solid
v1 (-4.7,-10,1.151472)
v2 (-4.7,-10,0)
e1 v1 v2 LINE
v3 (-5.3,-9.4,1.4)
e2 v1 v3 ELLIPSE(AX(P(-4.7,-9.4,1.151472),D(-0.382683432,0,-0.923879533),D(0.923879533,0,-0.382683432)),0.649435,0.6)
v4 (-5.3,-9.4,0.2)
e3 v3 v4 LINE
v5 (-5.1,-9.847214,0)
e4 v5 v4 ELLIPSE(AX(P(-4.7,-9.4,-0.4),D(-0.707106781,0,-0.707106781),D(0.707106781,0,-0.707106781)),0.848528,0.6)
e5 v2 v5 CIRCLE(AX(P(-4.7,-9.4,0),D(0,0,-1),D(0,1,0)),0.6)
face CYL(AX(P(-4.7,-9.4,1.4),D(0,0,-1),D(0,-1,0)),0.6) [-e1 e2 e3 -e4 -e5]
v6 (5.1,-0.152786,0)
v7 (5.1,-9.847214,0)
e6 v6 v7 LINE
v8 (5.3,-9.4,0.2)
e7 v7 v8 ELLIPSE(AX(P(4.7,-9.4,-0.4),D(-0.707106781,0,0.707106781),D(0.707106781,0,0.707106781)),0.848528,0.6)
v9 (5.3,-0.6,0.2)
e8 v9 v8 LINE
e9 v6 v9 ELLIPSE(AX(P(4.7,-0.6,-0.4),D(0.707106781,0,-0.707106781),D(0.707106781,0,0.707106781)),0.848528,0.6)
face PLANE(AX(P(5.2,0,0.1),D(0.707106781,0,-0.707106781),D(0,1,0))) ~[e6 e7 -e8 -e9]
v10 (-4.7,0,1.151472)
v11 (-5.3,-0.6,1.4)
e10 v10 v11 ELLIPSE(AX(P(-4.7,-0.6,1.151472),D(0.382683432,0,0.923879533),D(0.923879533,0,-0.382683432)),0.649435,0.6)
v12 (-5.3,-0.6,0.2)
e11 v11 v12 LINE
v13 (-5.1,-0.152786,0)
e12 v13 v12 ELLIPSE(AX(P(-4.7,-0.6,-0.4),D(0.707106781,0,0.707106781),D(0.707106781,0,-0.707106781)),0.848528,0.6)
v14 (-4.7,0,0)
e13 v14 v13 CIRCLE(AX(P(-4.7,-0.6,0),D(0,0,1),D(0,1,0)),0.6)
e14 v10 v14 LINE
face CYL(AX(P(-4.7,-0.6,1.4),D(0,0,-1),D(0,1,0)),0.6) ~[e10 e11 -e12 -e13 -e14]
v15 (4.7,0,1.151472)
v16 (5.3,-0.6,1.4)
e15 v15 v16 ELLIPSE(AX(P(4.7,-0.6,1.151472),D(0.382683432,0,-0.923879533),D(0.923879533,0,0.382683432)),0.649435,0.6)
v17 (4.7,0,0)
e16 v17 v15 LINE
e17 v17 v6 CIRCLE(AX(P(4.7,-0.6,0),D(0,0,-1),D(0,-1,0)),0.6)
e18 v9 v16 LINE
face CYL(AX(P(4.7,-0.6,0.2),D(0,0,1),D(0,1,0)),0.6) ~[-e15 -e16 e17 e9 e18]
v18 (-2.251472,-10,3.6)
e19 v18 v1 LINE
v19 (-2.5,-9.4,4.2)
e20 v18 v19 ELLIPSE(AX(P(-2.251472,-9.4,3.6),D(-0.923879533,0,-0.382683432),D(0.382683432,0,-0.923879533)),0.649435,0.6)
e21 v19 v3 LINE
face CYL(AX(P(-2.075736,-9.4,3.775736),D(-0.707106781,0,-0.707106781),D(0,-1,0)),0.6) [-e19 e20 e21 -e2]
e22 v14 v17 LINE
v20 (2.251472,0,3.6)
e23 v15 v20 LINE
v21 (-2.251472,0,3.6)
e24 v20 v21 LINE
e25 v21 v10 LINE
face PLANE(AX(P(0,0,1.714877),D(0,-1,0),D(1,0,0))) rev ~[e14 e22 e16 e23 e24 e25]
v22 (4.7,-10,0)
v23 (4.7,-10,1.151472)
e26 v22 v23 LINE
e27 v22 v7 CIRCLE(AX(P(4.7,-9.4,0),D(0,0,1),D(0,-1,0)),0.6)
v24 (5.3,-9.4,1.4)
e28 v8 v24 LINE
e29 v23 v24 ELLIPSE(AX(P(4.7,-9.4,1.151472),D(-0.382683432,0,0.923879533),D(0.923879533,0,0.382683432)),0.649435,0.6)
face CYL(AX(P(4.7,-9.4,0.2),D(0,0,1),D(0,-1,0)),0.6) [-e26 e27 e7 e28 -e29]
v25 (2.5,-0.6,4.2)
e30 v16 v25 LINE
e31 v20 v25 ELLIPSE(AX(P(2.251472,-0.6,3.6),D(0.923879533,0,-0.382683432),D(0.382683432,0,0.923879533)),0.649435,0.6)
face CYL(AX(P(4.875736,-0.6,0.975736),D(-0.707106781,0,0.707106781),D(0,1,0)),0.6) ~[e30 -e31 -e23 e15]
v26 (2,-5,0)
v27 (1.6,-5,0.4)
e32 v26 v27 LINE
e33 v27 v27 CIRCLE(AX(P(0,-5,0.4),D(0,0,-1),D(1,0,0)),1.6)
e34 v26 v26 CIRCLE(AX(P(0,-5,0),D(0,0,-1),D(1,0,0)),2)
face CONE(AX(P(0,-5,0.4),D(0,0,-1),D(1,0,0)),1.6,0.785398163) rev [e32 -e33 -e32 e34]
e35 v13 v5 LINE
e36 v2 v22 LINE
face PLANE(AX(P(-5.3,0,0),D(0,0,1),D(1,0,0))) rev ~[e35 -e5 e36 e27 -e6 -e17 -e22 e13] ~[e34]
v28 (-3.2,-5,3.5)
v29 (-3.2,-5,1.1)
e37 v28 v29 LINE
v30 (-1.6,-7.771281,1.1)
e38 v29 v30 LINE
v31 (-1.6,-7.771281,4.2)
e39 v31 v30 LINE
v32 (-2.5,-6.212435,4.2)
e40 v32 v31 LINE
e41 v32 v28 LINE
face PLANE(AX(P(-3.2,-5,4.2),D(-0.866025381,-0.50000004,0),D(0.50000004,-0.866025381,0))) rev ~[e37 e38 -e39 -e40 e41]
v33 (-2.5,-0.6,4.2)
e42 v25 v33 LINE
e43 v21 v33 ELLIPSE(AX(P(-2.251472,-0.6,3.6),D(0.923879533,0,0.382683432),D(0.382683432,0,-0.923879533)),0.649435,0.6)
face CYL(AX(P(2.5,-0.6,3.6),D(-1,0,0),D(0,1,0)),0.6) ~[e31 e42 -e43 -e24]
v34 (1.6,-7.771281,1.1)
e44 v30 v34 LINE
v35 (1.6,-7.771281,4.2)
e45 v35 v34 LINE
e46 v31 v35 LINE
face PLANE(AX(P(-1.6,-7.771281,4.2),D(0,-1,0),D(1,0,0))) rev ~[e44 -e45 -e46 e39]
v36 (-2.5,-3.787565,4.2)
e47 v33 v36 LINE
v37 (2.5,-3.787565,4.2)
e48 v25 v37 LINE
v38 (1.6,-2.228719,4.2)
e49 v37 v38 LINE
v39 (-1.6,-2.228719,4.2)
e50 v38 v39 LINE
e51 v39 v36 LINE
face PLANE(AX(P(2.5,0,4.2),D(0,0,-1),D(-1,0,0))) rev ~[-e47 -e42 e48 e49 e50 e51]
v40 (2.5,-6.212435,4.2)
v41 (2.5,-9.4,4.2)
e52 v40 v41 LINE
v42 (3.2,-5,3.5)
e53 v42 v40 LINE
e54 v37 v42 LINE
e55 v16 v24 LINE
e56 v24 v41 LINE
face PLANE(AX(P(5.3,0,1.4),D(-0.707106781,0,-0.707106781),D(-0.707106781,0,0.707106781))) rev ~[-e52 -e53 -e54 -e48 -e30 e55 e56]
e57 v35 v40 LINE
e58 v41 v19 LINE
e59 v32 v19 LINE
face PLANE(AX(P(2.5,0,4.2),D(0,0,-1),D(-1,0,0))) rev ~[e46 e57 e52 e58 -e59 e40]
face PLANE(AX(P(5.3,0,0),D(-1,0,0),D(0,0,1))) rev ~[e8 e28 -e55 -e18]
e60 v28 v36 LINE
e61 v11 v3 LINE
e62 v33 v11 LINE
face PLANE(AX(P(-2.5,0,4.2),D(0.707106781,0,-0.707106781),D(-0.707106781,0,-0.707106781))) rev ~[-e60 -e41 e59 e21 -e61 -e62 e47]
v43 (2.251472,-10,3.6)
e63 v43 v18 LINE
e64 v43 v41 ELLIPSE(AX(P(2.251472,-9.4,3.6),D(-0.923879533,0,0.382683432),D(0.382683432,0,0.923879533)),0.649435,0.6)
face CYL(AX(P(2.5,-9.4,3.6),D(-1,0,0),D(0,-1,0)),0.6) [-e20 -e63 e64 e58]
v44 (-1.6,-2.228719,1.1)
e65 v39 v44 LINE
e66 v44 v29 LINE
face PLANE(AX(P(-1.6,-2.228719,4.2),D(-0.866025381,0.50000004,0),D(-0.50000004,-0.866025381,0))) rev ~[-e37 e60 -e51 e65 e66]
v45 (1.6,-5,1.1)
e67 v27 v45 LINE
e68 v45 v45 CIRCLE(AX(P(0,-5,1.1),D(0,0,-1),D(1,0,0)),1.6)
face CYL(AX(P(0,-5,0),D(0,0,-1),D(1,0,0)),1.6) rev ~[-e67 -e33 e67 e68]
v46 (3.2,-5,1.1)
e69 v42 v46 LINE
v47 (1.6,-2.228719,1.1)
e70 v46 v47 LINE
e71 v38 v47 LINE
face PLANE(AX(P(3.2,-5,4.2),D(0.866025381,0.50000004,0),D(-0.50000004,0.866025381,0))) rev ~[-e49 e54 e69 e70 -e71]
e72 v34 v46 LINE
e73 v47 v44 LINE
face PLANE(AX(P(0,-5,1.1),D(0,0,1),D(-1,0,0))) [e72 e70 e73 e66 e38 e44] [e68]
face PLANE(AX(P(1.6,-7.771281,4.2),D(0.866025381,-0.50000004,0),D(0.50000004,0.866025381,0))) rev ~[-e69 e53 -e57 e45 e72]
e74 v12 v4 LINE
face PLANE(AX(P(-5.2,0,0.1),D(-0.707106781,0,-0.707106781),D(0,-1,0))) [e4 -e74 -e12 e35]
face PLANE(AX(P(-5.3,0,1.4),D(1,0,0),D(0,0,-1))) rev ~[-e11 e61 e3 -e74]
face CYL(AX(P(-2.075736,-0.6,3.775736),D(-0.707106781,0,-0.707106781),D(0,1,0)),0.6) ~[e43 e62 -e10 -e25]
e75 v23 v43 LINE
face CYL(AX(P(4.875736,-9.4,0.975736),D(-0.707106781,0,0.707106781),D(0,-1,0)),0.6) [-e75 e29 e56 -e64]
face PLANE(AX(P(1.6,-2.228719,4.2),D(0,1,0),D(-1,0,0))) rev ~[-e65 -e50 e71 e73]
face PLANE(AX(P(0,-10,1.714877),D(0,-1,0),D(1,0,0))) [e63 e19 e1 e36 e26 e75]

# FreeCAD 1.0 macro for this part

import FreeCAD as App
import Part
import Sketcher
Q = App.Units.Quantity


def edges_at(feature, points):
    """Names of the edges that pass closest to the given points."""
    edges = feature.Shape.Edges
    near = lambda p: min(range(len(edges)), key=lambda i: edges[i].distToShape(Part.Vertex(*p))[0])
    return sorted({f"Edge{near(p) + 1}" for p in points})

doc = App.newDocument("Part")
body = doc.addObject("PartDesign::Body", "Body")

sketch1 = body.newObject("Sketcher::SketchObject", "Sketch")
sketch1.AttachmentSupport = (doc.getObject("XZ_Plane"), [""])
sketch1.MapMode = "FlatFace"
sketch1.addGeometry(Part.LineSegment(App.Vector(-5.3, 0, 0), App.Vector(5.3, 0, 0)), False)
sketch1.addGeometry(Part.LineSegment(App.Vector(5.3, 0, 0), App.Vector(5.3, 1.4, 0)), False)
sketch1.addGeometry(Part.LineSegment(App.Vector(5.3, 1.4, 0), App.Vector(2.5, 4.2, 0)), False)
sketch1.addGeometry(Part.LineSegment(App.Vector(2.5, 4.2, 0), App.Vector(-2.5, 4.2, 0)), False)
sketch1.addGeometry(Part.LineSegment(App.Vector(-2.5, 4.2, 0), App.Vector(-5.3, 1.4, 0)), False)
sketch1.addGeometry(Part.LineSegment(App.Vector(-5.3, 1.4, 0), App.Vector(-5.3, 0, 0)), False)
sketch1.addConstraint(Sketcher.Constraint("Coincident", 0, 2, 1, 1))
sketch1.addConstraint(Sketcher.Constraint("Coincident", 1, 2, 2, 1))
sketch1.addConstraint(Sketcher.Constraint("Coincident", 2, 2, 3, 1))
sketch1.addConstraint(Sketcher.Constraint("Coincident", 3, 2, 4, 1))
sketch1.addConstraint(Sketcher.Constraint("Coincident", 4, 2, 5, 1))
sketch1.addConstraint(Sketcher.Constraint("Coincident", 5, 2, 0, 1))
sketch1.addConstraint(Sketcher.Constraint("Horizontal", 0))
sketch1.addConstraint(Sketcher.Constraint("Vertical", 1))
sketch1.addConstraint(Sketcher.Constraint("Horizontal", 3))
sketch1.addConstraint(Sketcher.Constraint("Vertical", 5))
sketch1.addConstraint(Sketcher.Constraint("Symmetric", 0, 2, 5, 2, -1, 1))
sketch1.addConstraint(Sketcher.Constraint("Perpendicular", 2, 4))
sketch1.addConstraint(Sketcher.Constraint("Horizontal", 1, 2, 4, 2))
sketch1.addConstraint(Sketcher.Constraint("Equal", 2, 4))
sketch1.addConstraint(Sketcher.Constraint("DistanceX", 3, 2, 3, 1, Q("5 mm")))
sketch1.addConstraint(Sketcher.Constraint("DistanceX", 0, 1, 0, 2, Q("10.6 mm")))
sketch1.addConstraint(Sketcher.Constraint("DistanceY", 1, 1, 1, 2, Q("1.4 mm")))
pad1 = body.newObject("PartDesign::Pad", "Pad")
pad1.Profile = sketch1
pad1.Length = 10

sketch2 = body.newObject("Sketcher::SketchObject", "Sketch001")
sketch2.AttachmentSupport = (doc.getObject("XY_Plane"), [""])
sketch2.MapMode = "FlatFace"
sketch2.AttachmentOffset = App.Placement(App.Vector(0, 0, 4.2), App.Rotation())
sketch2.addGeometry(Part.LineSegment(App.Vector(-1.6, -2.228719, 0), App.Vector(-3.2, -5, 0)), False)
sketch2.addGeometry(Part.LineSegment(App.Vector(-3.2, -5, 0), App.Vector(-1.6, -7.771281, 0)), False)
sketch2.addGeometry(Part.LineSegment(App.Vector(-1.6, -7.771281, 0), App.Vector(1.6, -7.771281, 0)), False)
sketch2.addGeometry(Part.LineSegment(App.Vector(1.6, -7.771281, 0), App.Vector(3.2, -5, 0)), False)
sketch2.addGeometry(Part.LineSegment(App.Vector(3.2, -5, 0), App.Vector(1.6, -2.228719, 0)), False)
sketch2.addGeometry(Part.LineSegment(App.Vector(1.6, -2.228719, 0), App.Vector(-1.6, -2.228719, 0)), False)
sketch2.addConstraint(Sketcher.Constraint("Coincident", 0, 2, 1, 1))
sketch2.addConstraint(Sketcher.Constraint("Coincident", 1, 2, 2, 1))
sketch2.addConstraint(Sketcher.Constraint("Coincident", 2, 2, 3, 1))
sketch2.addConstraint(Sketcher.Constraint("Coincident", 3, 2, 4, 1))
sketch2.addConstraint(Sketcher.Constraint("Coincident", 4, 2, 5, 1))
sketch2.addConstraint(Sketcher.Constraint("Coincident", 5, 2, 0, 1))
sketch2.addConstraint(Sketcher.Constraint("Horizontal", 2))
sketch2.addConstraint(Sketcher.Constraint("Horizontal", 5))
sketch2.addConstraint(Sketcher.Constraint("Symmetric", 0, 2, 3, 2, -2))
sketch2.addConstraint(Sketcher.Constraint("Parallel", 0, 3))
sketch2.addConstraint(Sketcher.Constraint("Parallel", 1, 4))
sketch2.addConstraint(Sketcher.Constraint("Vertical", 2, 2, 4, 2))
sketch2.addConstraint(Sketcher.Constraint("Vertical", 1, 2, 5, 2))
sketch2.addConstraint(Sketcher.Constraint("Angle", 0, Q("-120.000003 deg")))
sketch2.addConstraint(Sketcher.Constraint("DistanceX", 2, 1, 2, 2, Q("3.2 mm")))
sketch2.addConstraint(Sketcher.Constraint("DistanceY", 0, 2, -1, 1, Q("5 mm")))
sketch2.addConstraint(Sketcher.Constraint("Distance", 0, Q("3.2 mm")))
pocket1 = body.newObject("PartDesign::Pocket", "Pocket")
pocket1.Profile = sketch2
pocket1.Length = 3.1

sketch3 = body.newObject("Sketcher::SketchObject", "Sketch002")
sketch3.AttachmentSupport = (doc.getObject("XY_Plane"), [""])
sketch3.MapMode = "FlatFace"
sketch3.addGeometry(Part.Circle(App.Vector(0, -5, 0), App.Vector(0, 0, 1), 1.6), False)
sketch3.addConstraint(Sketcher.Constraint("PointOnObject", 0, 3, -2))
sketch3.addConstraint(Sketcher.Constraint("Diameter", 0, Q("3.2 mm")))
sketch3.addConstraint(Sketcher.Constraint("DistanceY", 0, 3, -1, 1, Q("5 mm")))
pocket2 = body.newObject("PartDesign::Pocket", "Pocket001")
pocket2.Profile = sketch3
pocket2.Type = "ThroughAll"
pocket2.Reversed = True
doc.recompute()

chamfer = body.newObject("PartDesign::Chamfer", "Chamfer")
chamfer.Base = (pocket2, edges_at(pocket2, [(-1.6, -5, 0)]))
chamfer.Size = 0.4
doc.recompute()

chamfer2 = body.newObject("PartDesign::Chamfer", "Chamfer001")
chamfer2.Base = (chamfer, edges_at(chamfer, [(-5.3, -5, 0), (5.3, -5, 0)]))
chamfer2.Size = 0.2
doc.recompute()

fillet = body.newObject("PartDesign::Fillet", "Fillet")
fillet.Base = (chamfer2, edges_at(chamfer2, [
    (-5.3, 0, 0.8),
    (5.3, 0, 0.8),
    (-3.9, 0, 2.8),
    (3.9, 0, 2.8),
    (0, 0, 4.2),
    (-5.3, -10, 0.8),
    (5.3, -10, 0.8),
    (-3.9, -10, 2.8),
    (3.9, -10, 2.8),
    (0, -10, 4.2),
]))
fillet.Radius = 0.6

doc.recompute()
